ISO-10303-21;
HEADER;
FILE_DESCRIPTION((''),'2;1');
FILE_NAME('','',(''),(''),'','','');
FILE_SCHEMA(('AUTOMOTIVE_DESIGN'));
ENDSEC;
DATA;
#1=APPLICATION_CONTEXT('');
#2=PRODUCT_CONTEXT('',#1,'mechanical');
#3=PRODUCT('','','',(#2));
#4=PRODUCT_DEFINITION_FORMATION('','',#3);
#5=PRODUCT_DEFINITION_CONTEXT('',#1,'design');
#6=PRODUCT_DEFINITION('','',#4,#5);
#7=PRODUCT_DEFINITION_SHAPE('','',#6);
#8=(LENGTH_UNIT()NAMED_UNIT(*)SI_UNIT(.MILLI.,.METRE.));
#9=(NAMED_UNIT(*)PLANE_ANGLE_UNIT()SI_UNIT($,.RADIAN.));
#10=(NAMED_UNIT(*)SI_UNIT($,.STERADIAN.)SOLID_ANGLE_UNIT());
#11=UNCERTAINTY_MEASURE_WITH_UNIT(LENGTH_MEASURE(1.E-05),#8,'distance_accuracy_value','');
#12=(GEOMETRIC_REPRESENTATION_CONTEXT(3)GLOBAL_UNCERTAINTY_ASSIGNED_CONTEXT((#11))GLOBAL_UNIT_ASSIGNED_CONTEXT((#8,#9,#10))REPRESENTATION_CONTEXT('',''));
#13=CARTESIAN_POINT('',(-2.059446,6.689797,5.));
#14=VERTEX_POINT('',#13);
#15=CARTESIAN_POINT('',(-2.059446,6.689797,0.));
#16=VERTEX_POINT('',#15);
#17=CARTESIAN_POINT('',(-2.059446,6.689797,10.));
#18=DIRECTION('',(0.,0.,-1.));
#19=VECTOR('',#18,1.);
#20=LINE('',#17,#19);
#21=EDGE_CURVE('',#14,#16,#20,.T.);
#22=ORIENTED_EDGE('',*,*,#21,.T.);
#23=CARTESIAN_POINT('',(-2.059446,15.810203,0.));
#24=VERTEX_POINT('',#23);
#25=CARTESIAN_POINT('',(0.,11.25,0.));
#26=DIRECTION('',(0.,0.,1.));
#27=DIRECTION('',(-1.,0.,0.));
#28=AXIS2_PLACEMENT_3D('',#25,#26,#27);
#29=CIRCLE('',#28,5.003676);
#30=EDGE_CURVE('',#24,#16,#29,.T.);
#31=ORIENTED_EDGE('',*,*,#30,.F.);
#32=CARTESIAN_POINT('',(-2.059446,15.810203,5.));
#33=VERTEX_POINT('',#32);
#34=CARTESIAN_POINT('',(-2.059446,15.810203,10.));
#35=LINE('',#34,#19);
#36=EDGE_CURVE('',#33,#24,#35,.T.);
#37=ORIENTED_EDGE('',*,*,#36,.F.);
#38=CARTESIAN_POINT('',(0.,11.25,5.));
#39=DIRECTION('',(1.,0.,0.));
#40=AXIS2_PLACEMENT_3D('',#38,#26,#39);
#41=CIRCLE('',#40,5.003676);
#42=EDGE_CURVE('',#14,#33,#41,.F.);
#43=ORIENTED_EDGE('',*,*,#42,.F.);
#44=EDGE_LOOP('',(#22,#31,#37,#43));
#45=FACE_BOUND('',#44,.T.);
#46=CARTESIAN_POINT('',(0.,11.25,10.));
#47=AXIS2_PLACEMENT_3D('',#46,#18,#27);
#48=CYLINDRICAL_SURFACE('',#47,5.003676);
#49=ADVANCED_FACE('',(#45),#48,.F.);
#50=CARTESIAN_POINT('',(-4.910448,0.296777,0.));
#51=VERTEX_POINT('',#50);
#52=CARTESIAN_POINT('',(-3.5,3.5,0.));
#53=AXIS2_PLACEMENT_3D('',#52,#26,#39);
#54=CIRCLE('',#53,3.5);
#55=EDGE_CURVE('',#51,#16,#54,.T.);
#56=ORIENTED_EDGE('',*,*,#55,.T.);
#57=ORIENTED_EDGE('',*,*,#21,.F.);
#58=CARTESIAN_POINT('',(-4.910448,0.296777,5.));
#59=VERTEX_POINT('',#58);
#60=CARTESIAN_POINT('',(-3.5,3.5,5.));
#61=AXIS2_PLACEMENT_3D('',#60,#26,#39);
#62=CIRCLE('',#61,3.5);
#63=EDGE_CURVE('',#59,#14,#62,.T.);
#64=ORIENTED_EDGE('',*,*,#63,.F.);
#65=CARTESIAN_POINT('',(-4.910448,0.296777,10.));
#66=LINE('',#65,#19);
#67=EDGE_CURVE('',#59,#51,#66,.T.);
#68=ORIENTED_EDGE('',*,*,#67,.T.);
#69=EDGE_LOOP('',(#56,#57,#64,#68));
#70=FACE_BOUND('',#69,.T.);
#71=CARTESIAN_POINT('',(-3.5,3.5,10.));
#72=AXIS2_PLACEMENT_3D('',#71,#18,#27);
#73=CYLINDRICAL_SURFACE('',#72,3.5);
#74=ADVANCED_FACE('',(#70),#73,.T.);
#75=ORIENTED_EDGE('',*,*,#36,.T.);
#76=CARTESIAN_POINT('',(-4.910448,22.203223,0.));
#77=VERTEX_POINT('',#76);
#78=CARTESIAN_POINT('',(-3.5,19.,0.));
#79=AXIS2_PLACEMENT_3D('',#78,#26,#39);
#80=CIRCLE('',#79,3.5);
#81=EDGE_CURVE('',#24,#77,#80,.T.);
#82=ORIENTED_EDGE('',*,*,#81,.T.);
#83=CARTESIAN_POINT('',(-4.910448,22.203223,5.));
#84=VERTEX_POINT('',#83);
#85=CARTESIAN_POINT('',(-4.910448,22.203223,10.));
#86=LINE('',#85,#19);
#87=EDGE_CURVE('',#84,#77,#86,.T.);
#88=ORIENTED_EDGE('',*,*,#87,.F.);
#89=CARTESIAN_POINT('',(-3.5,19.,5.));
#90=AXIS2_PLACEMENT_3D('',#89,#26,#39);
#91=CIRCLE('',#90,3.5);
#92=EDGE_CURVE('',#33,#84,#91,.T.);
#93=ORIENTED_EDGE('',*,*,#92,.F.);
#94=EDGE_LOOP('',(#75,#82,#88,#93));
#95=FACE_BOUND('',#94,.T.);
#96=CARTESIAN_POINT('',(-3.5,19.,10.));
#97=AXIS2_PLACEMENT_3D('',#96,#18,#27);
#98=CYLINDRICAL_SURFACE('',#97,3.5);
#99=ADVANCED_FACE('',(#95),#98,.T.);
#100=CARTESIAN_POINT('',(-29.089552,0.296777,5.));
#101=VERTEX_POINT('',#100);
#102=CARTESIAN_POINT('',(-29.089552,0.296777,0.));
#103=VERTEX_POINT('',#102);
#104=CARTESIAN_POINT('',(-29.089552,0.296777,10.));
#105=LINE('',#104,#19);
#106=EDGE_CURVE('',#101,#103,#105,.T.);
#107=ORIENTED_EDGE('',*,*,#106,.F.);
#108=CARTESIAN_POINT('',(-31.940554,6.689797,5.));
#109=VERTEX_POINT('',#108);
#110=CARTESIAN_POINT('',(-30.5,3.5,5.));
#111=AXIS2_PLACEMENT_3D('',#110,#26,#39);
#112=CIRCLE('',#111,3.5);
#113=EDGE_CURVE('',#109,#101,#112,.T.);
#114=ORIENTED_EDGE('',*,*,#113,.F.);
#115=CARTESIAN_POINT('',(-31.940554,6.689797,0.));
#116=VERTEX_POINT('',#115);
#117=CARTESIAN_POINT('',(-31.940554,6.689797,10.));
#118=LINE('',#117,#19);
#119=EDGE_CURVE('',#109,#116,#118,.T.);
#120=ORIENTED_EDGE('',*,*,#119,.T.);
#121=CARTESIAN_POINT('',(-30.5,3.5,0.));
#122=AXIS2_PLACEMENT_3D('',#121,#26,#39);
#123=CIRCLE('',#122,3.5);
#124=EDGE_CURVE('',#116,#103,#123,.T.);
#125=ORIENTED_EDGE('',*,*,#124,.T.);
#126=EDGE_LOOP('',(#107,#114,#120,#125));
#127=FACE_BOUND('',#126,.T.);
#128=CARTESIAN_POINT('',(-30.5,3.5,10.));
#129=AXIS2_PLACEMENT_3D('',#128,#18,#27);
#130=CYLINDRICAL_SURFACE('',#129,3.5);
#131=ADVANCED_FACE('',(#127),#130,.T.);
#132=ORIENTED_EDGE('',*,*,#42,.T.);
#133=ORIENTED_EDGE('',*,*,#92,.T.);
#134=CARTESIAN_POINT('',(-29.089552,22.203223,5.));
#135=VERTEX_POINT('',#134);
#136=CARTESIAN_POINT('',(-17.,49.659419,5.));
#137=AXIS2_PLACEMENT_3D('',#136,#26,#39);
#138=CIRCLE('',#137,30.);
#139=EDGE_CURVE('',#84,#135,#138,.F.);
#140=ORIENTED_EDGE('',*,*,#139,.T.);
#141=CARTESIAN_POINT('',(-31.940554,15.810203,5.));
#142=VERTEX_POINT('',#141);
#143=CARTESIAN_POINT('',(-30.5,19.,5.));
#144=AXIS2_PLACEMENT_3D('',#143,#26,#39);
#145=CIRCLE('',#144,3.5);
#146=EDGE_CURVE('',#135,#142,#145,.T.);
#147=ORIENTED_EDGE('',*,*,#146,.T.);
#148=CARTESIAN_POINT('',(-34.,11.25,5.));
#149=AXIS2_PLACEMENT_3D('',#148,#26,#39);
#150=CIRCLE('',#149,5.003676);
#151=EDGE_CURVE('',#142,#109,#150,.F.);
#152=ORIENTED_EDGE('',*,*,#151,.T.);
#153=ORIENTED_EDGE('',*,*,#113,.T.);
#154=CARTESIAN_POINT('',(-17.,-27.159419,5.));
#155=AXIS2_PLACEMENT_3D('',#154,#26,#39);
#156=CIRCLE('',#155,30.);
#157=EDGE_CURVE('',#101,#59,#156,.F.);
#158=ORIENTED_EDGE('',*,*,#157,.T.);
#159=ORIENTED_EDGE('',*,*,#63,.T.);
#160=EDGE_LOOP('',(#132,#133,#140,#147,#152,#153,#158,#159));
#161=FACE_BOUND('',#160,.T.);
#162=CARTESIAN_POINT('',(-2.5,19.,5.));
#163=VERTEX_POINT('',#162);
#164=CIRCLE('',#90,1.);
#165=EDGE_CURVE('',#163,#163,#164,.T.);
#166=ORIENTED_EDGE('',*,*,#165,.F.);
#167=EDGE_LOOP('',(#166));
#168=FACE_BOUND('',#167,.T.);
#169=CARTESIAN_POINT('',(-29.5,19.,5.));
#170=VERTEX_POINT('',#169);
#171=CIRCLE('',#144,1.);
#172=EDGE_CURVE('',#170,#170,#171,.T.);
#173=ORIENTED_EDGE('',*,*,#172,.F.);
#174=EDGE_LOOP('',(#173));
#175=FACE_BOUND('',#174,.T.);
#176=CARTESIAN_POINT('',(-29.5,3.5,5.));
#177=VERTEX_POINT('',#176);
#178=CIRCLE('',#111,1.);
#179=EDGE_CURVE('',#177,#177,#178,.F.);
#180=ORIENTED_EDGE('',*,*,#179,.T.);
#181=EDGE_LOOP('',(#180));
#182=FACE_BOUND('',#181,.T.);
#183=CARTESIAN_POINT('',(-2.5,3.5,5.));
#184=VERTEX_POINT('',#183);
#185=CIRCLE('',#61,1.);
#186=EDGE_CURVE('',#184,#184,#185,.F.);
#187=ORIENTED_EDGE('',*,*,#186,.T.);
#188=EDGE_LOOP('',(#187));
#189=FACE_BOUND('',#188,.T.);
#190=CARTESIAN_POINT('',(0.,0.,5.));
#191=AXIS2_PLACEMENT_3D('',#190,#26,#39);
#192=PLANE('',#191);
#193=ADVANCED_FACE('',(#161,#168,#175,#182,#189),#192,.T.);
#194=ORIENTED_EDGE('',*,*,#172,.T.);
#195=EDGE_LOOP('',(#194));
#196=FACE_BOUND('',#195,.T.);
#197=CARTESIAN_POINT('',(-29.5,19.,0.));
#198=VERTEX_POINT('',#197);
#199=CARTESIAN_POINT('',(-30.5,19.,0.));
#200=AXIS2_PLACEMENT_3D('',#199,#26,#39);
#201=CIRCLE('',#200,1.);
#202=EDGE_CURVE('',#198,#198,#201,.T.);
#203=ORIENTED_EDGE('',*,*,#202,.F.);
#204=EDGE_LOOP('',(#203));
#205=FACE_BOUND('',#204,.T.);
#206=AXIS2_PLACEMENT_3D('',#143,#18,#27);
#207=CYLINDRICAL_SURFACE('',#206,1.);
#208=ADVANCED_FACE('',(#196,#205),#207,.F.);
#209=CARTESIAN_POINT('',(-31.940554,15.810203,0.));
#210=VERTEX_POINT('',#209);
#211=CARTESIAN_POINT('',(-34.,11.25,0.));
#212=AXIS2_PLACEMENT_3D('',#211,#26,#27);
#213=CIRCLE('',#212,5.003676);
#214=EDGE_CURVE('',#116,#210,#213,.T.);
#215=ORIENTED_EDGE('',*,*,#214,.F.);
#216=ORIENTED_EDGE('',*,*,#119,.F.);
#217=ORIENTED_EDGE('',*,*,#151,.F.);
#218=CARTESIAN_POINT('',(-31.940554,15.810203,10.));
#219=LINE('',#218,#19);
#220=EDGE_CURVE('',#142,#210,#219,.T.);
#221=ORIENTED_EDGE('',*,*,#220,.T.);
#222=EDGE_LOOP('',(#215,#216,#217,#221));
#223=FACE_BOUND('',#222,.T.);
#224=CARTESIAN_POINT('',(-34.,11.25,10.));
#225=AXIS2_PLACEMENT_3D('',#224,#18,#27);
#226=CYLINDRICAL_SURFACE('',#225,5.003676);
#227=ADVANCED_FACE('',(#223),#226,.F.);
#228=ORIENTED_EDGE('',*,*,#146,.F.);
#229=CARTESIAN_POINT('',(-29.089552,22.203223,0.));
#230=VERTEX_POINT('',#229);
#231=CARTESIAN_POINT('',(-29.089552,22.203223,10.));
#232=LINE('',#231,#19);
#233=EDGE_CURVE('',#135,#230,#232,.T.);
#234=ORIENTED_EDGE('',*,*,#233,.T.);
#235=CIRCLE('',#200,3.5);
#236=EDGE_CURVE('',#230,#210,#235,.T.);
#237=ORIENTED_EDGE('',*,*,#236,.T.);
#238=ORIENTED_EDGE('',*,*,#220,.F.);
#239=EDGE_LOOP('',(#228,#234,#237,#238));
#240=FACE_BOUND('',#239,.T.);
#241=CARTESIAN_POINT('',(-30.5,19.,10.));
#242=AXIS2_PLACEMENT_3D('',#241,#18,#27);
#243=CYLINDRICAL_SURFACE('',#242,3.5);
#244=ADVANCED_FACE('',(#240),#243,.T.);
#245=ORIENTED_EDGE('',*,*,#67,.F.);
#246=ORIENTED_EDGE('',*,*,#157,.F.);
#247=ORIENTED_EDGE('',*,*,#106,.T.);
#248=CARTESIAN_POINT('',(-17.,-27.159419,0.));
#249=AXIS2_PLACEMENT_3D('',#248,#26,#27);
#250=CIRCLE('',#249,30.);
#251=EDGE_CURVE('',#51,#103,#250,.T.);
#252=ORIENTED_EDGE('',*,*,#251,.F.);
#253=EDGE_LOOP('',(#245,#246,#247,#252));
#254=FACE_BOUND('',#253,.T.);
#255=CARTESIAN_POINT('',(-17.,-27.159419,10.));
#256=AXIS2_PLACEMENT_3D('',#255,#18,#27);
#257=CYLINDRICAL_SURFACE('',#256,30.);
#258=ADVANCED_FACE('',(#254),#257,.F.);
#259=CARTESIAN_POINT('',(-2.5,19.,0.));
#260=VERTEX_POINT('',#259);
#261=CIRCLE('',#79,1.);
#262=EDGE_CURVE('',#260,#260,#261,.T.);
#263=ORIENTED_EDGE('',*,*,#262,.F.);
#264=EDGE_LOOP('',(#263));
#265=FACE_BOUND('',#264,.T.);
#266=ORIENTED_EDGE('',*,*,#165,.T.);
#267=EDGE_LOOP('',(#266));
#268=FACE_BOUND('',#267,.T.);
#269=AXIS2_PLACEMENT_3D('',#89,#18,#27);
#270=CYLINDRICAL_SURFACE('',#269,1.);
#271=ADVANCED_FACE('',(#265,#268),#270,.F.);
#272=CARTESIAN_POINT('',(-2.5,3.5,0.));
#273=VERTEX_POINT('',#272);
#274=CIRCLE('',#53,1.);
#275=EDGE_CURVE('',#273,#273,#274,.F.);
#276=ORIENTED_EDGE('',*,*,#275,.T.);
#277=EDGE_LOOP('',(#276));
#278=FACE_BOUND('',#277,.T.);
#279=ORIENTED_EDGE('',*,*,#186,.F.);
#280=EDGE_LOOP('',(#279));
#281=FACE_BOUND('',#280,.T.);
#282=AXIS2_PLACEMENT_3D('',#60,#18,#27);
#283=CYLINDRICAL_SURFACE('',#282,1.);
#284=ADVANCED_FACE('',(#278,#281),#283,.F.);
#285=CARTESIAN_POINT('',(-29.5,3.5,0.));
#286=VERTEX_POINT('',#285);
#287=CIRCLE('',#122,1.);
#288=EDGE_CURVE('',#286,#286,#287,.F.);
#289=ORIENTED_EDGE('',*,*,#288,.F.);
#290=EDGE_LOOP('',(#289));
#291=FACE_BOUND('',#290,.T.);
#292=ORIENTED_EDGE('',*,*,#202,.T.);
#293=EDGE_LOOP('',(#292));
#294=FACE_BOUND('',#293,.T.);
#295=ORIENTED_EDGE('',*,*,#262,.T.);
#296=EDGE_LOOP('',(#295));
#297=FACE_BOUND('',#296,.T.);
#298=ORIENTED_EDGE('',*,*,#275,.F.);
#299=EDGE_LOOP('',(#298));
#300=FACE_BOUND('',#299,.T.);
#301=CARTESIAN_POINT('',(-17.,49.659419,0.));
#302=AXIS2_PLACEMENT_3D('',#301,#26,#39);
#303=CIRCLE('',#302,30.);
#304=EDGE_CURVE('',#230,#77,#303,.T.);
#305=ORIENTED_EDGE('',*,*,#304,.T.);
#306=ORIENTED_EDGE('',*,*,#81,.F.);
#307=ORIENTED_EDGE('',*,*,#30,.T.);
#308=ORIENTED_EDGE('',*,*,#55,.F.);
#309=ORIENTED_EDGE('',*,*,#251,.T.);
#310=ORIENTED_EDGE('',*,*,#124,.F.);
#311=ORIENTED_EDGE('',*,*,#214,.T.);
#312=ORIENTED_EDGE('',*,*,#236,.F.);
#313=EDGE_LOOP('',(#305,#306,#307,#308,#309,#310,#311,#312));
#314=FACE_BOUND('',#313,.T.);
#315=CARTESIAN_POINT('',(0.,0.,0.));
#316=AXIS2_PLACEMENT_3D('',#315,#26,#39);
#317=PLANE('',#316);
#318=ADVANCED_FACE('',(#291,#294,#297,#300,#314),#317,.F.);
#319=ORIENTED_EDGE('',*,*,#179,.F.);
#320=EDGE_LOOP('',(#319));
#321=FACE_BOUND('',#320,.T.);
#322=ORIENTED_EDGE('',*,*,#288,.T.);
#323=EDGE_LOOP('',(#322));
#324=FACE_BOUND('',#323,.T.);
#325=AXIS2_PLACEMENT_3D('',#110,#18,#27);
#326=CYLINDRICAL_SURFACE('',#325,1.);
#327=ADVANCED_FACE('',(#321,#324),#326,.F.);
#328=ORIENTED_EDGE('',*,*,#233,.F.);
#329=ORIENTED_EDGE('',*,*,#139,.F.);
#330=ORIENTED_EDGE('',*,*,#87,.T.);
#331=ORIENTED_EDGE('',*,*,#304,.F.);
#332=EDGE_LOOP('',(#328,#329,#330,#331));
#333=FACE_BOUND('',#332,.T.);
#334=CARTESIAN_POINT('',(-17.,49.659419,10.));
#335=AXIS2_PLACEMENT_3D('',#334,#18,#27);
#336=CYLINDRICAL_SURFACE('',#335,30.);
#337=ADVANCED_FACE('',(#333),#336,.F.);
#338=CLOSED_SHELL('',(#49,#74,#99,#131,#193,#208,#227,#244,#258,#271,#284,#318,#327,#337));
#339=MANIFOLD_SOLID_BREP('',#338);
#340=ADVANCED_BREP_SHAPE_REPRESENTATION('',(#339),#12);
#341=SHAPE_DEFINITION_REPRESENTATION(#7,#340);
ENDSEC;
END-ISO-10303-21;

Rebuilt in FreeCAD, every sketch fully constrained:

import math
import FreeCAD as App
import Part
import Sketcher
from FreeCAD import Vector
Q = App.Units.Quantity

doc = App.newDocument("Part")
params = doc.addObject("Spreadsheet::Sheet", "Params")
for row, (alias, value) in enumerate([
    ("sketch1_diameter", "2 mm"),
    ("sketch1_width", "34 mm"),
    ("sketch1_height", "22.5 mm"),
    ("pad1_length", "5 mm"),
    ("sketch2_radius", "30 mm"),
    ("sketch2_radius2", "3.5 mm"),
    ("pocket1_length", "10 mm"),
], start=1):
    params.set(f"A{row}", alias)
    params.set(f"B{row}", "=" + value)
    params.setAlias(f"B{row}", alias)

body = doc.addObject("PartDesign::Body", "Body")

# Sketch on XY plane
sketch1 = body.newObject("Sketcher::SketchObject", "Sketch")
sketch1.AttachmentSupport = (doc.getObject("XY_Plane"), [""])
sketch1.MapMode = "FlatFace"
sketch1.addGeometry(Part.LineSegment(Vector(-34, 22.5, 0), Vector(-34, 0, 0)), False)
sketch1.addGeometry(Part.LineSegment(Vector(-34, 0, 0), Vector(0, 0, 0)), False)
sketch1.addGeometry(Part.LineSegment(Vector(0, 0, 0), Vector(0, 22.5, 0)), False)
sketch1.addGeometry(Part.LineSegment(Vector(0, 22.5, 0), Vector(-34, 22.5, 0)), False)
sketch1.addGeometry(Part.Circle(Vector(-30.5, 3.5, 0), Vector(0, 0, 1), 1), False)
sketch1.addGeometry(Part.Circle(Vector(-3.5, 3.5, 0), Vector(0, 0, 1), 1), False)
sketch1.addGeometry(Part.Circle(Vector(-30.5, 19, 0), Vector(0, 0, 1), 1), False)
sketch1.addGeometry(Part.Circle(Vector(-3.5, 19, 0), Vector(0, 0, 1), 1), False)
sketch1.addConstraint(Sketcher.Constraint("Coincident", 0, 2, 1, 1))
sketch1.addConstraint(Sketcher.Constraint("Coincident", 1, 2, 2, 1))
sketch1.addConstraint(Sketcher.Constraint("Coincident", 2, 2, 3, 1))
sketch1.addConstraint(Sketcher.Constraint("Coincident", 3, 2, 0, 1))
sketch1.addConstraint(Sketcher.Constraint("Vertical", 0))
sketch1.addConstraint(Sketcher.Constraint("Horizontal", 1))
sketch1.addConstraint(Sketcher.Constraint("Vertical", 2))
sketch1.addConstraint(Sketcher.Constraint("Horizontal", 3))
sketch1.addConstraint(Sketcher.Constraint("Coincident", 1, 2, -1, 1))
sketch1.addConstraint(Sketcher.Constraint("Equal", 4, 5))
sketch1.addConstraint(Sketcher.Constraint("Equal", 5, 6))
sketch1.addConstraint(Sketcher.Constraint("Equal", 6, 7))
sketch1.addConstraint(Sketcher.Constraint("Horizontal", 4, 3, 5, 3))
sketch1.addConstraint(Sketcher.Constraint("Horizontal", 6, 3, 7, 3))
sketch1.addConstraint(Sketcher.Constraint("Vertical", 4, 3, 6, 3))
sketch1.addConstraint(Sketcher.Constraint("Vertical", 5, 3, 7, 3))
sketch1.addConstraint(Sketcher.Constraint("Diameter", 4, Q("2 mm")))
sketch1.addConstraint(Sketcher.Constraint("DistanceX", 1, 1, 1, 2, Q("34 mm")))
sketch1.addConstraint(Sketcher.Constraint("DistanceY", 0, 2, 0, 1, Q("22.5 mm")))
sketch1.addConstraint(Sketcher.Constraint("DistanceY", -1, 1, 6, 3, Q("19 mm")))
sketch1.addConstraint(Sketcher.Constraint("DistanceX", 4, 3, 5, 3, Q("27 mm")))
sketch1.addConstraint(Sketcher.Constraint("DistanceY", 5, 3, 2, 2, Q("19 mm")))
sketch1.addConstraint(Sketcher.Constraint("DistanceX", 4, 3, -1, 1, Q("30.5 mm")))
sketch1.setExpression("Constraints[16]", "Params.sketch1_diameter")
sketch1.setExpression("Constraints[17]", "Params.sketch1_width")
sketch1.setExpression("Constraints[18]", "Params.sketch1_height")
pad1 = body.newObject("PartDesign::Pad", "Pad")
pad1.Profile = sketch1
pad1.setExpression("Length", "Params.pad1_length")

# Sketch on XY plane
sketch2 = body.newObject("Sketcher::SketchObject", "Sketch001")
sketch2.AttachmentSupport = (doc.getObject("XY_Plane"), [""])
sketch2.MapMode = "FlatFace"
sketch2.addGeometry(Part.LineSegment(Vector(-37.5, -3.3, 0), Vector(-36, 25, 0)), False)
sketch2.addGeometry(Part.LineSegment(Vector(-36, 25, 0), Vector(8, 22.6, 0)), False)
sketch2.addGeometry(Part.LineSegment(Vector(8, 22.6, 0), Vector(6.5, -5.7, 0)), False)
sketch2.addGeometry(Part.LineSegment(Vector(6.5, -5.7, 0), Vector(-37.5, -3.3, 0)), False)
sketch2.addGeometry(Part.ArcOfCircle(Part.Circle(Vector(-34, 11.2, 0), Vector(0, 0, 1), 5), math.radians(-66), math.radians(66)), False)
sketch2.addGeometry(Part.ArcOfCircle(Part.Circle(Vector(-30.5, 3.5, 0), Vector(0, 0, 1), 3.5), math.radians(114), math.radians(294)), False)
sketch2.addGeometry(Part.ArcOfCircle(Part.Circle(Vector(-17, -27.2, 0), Vector(0, 0, 1), 30), math.radians(66), math.radians(114)), False)
sketch2.addGeometry(Part.ArcOfCircle(Part.Circle(Vector(-3.5, 3.5, 0), Vector(0, 0, 1), 3.5), math.radians(-114), math.radians(66)), False)
sketch2.addGeometry(Part.ArcOfCircle(Part.Circle(Vector(0, 11.2, 0), Vector(0, 0, 1), 5), math.radians(114), math.radians(246)), False)
sketch2.addGeometry(Part.ArcOfCircle(Part.Circle(Vector(-3.5, 19, 0), Vector(0, 0, 1), 3.5), math.radians(-66), math.radians(114)), False)
sketch2.addGeometry(Part.ArcOfCircle(Part.Circle(Vector(-17, 49.7, 0), Vector(0, 0, 1), 30), math.radians(-114), math.radians(-66)), False)
sketch2.addGeometry(Part.ArcOfCircle(Part.Circle(Vector(-30.5, 19, 0), Vector(0, 0, 1), 3.5), math.radians(66), math.radians(246)), False)
sketch2.addConstraint(Sketcher.Constraint("Coincident", 0, 2, 1, 1))
sketch2.addConstraint(Sketcher.Constraint("Coincident", 1, 2, 2, 1))
sketch2.addConstraint(Sketcher.Constraint("Coincident", 2, 2, 3, 1))
sketch2.addConstraint(Sketcher.Constraint("Coincident", 3, 2, 0, 1))
sketch2.addConstraint(Sketcher.Constraint("Tangent", 4, 1, 5, 1))
sketch2.addConstraint(Sketcher.Constraint("Tangent", 5, 2, 6, 2))
sketch2.addConstraint(Sketcher.Constraint("Tangent", 6, 1, 7, 1))
sketch2.addConstraint(Sketcher.Constraint("Tangent", 7, 2, 8, 2))
sketch2.addConstraint(Sketcher.Constraint("Tangent", 8, 1, 9, 1))
sketch2.addConstraint(Sketcher.Constraint("Tangent", 9, 2, 10, 2))
sketch2.addConstraint(Sketcher.Constraint("Tangent", 10, 1, 11, 1))
sketch2.addConstraint(Sketcher.Constraint("Tangent", 11, 2, 4, 2))
sketch2.addConstraint(Sketcher.Constraint("Equal", 5, 7))
sketch2.addConstraint(Sketcher.Constraint("Equal", 4, 8))
sketch2.addConstraint(Sketcher.Constraint("Equal", 7, 9))
sketch2.addConstraint(Sketcher.Constraint("Equal", 6, 10))
sketch2.addConstraint(Sketcher.Constraint("Equal", 9, 11))
sketch2.addConstraint(Sketcher.Constraint("PointOnObject", 8, 3, -2))
sketch2.addConstraint(Sketcher.Constraint("Perpendicular", 0, 1))
sketch2.addConstraint(Sketcher.Constraint("Perpendicular", 1, 2))
sketch2.addConstraint(Sketcher.Constraint("Perpendicular", 2, 3))
sketch2.addConstraint(Sketcher.Constraint("Horizontal", 5, 3, 7, 3))
sketch2.addConstraint(Sketcher.Constraint("Horizontal", 4, 3, 8, 3))
sketch2.addConstraint(Sketcher.Constraint("Horizontal", 9, 3, 11, 3))
sketch2.addConstraint(Sketcher.Constraint("Vertical", 7, 3, 9, 3))
sketch2.addConstraint(Sketcher.Constraint("Radius", 6, Q("30 mm")))
sketch2.addConstraint(Sketcher.Constraint("Radius", 5, Q("3.5 mm")))
sketch2.addConstraint(Sketcher.Constraint("DistanceX", 4, 3, -1, 1, Q("34 mm")))
sketch2.addConstraint(Sketcher.Constraint("DistanceY", -1, 1, 9, 3, Q("19 mm")))
sketch2.addConstraint(Sketcher.Constraint("DistanceX", 5, 3, 7, 3, Q("27 mm")))
sketch2.addConstraint(Sketcher.Constraint("DistanceY", -1, 1, 5, 3, Q("3.5 mm")))
sketch2.addConstraint(Sketcher.Constraint("DistanceY", 3, 2, 5, 2, Q("3.5823 mm")))
sketch2.addConstraint(Sketcher.Constraint("Distance", 0, Q("28.365559 mm")))
sketch2.addConstraint(Sketcher.Constraint("Distance", 1, Q("44.053079 mm")))
sketch2.addConstraint(Sketcher.Constraint("DistanceX", 0, 2, -1, 1, Q("35.959041 mm")))
sketch2.addConstraint(Sketcher.Constraint("DistanceY", -1, 1, 0, 2, Q("25.03675 mm")))
sketch2.setExpression("Constraints[25]", "Params.sketch2_radius")
sketch2.setExpression("Constraints[26]", "Params.sketch2_radius2")
pocket1 = body.newObject("PartDesign::Pocket", "Pocket")
pocket1.Profile = sketch2
pocket1.setExpression("Length", "Params.pocket1_length")
pocket1.Reversed = True

doc.recompute()
